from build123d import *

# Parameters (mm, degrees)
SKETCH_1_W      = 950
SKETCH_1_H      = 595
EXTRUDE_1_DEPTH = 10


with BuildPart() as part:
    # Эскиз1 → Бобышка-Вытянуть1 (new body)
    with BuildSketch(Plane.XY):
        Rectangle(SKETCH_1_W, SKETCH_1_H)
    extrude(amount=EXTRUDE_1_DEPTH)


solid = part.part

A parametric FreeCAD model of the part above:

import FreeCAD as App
import Part
import Sketcher
from FreeCAD import Vector

doc = App.newDocument("Part")
body = doc.addObject("PartDesign::Body", "Body")

# Sketch on XY plane
sketch1 = doc.addObject("Sketcher::SketchObject", "Sketch")
body.addObject(sketch1)
sketch1.AttachmentSupport = (doc.XY_Plane, [""])
sketch1.MapMode = "FlatFace"
sketch1.addGeometry(Part.LineSegment(Vector(-475, 298, 0), Vector(-475, -298, 0)), False)
sketch1.addGeometry(Part.LineSegment(Vector(-475, -298, 0), Vector(475, -298, 0)), False)
sketch1.addGeometry(Part.LineSegment(Vector(475, -298, 0), Vector(475, 298, 0)), False)
sketch1.addGeometry(Part.LineSegment(Vector(475, 298, 0), Vector(-475, 298, 0)), False)
sketch1.addConstraint(Sketcher.Constraint("Coincident", 0, 2, 1, 1))
sketch1.addConstraint(Sketcher.Constraint("Coincident", 1, 2, 2, 1))
sketch1.addConstraint(Sketcher.Constraint("Coincident", 2, 2, 3, 1))
sketch1.addConstraint(Sketcher.Constraint("Coincident", 3, 2, 0, 1))
sketch1.addConstraint(Sketcher.Constraint("Vertical", 0))
sketch1.addConstraint(Sketcher.Constraint("Horizontal", 1))
sketch1.addConstraint(Sketcher.Constraint("Vertical", 2))
sketch1.addConstraint(Sketcher.Constraint("Horizontal", 3))
sketch1.addConstraint(Sketcher.Constraint("Symmetric", 0, 2, 2, 2, -1, 1))
sketch1.addConstraint(Sketcher.Constraint("DistanceX", 1, 1, 1, 2, 950.0))
sketch1.addConstraint(Sketcher.Constraint("DistanceY", 0, 2, 0, 1, 595.0))
pad1 = doc.addObject("PartDesign::Pad", "Pad")
body.addObject(pad1)
pad1.Profile = sketch1
pad1.Length = 10

doc.recompute()
